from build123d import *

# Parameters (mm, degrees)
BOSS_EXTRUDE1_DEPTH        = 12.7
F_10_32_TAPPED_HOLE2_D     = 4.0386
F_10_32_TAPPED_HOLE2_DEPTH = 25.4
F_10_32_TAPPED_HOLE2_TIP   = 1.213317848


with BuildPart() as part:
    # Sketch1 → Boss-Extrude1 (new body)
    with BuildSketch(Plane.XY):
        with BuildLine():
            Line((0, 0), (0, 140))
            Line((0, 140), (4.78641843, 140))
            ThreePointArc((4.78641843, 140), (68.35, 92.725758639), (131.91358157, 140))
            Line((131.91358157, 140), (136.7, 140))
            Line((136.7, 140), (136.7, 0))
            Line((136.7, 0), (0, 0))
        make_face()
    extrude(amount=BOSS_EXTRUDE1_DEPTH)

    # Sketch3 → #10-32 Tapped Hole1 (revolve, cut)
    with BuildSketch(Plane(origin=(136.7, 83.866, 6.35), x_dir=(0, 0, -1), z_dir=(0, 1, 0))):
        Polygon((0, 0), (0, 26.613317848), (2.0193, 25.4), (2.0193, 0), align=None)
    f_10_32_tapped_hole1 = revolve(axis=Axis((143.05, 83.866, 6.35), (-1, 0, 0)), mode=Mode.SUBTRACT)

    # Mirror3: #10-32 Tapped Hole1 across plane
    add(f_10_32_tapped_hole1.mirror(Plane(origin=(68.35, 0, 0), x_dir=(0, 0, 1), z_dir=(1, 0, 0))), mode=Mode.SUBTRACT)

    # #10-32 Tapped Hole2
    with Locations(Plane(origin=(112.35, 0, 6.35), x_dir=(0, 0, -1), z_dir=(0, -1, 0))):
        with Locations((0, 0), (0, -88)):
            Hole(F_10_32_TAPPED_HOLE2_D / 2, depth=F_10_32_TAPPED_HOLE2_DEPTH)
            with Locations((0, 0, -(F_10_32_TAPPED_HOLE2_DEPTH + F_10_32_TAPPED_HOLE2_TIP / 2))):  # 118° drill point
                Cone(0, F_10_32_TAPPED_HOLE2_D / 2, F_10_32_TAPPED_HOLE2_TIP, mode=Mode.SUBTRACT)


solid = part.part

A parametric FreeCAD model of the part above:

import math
import FreeCAD as App
import Part
import Sketcher

V = App.Vector
Q = App.Units.Quantity

doc = App.newDocument("Part")
body = doc.addObject("PartDesign::Body", "Body")

# Sketch on XY plane
sketch1 = body.newObject("Sketcher::SketchObject", "Sketch")
sketch1.AttachmentSupport = (doc.getObject("XY_Plane"), [""])
sketch1.MapMode = "FlatFace"
sketch1.addGeometry([
    Part.LineSegment(V(0, 140, 0), V(0, 0, 0)),  # 0
    Part.LineSegment(V(0, 0, 0), V(136.7, 0, 0)),  # 1
    Part.LineSegment(V(136.7, 0, 0), V(136.7, 140, 0)),  # 2
    Part.LineSegment(V(136.7, 140, 0), V(131.913582, 140, 0)),  # 3
    Part.ArcOfCircle(Part.Circle(V(68.35, 159.095759, 0), V(0, 0, 1), 66.37), math.radians(-163.278691), math.radians(-16.721309)),  # 4
    Part.LineSegment(V(4.786418, 140, 0), V(0, 140, 0)),  # 5
], False)
sketch1.addConstraint([
    Sketcher.Constraint("Coincident", 0, 2, 1, 1),
    Sketcher.Constraint("Coincident", 1, 2, 2, 1),
    Sketcher.Constraint("Coincident", 2, 2, 3, 1),
    Sketcher.Constraint("Coincident", 3, 2, 4, 2),
    Sketcher.Constraint("Coincident", 4, 1, 5, 1),
    Sketcher.Constraint("Coincident", 5, 2, 0, 1),
    Sketcher.Constraint("Vertical", 0),
    Sketcher.Constraint("Horizontal", 1),
    Sketcher.Constraint("Vertical", 2),
    Sketcher.Constraint("Horizontal", 3),
    Sketcher.Constraint("Horizontal", 5),
    Sketcher.Constraint("Coincident", 0, 2, -1, 1),
    Sketcher.Constraint("Horizontal", 3, 2, 4, 1),
    Sketcher.Constraint("Equal", 3, 5),
    Sketcher.Constraint("Radius", 4, 66.37),
    Sketcher.Constraint("DistanceX", 1, 1, 1, 2, 136.7),
    Sketcher.Constraint("DistanceY", 0, 2, 0, 1, 140.0),
    Sketcher.Constraint("DistanceX", 3, 2, 3, 1, 4.786418),
])
pad1 = body.newObject("PartDesign::Pad", "Pad")
pad1.Profile = sketch1
pad1.Length = Q("0.5 in")

# Sketch on XZ plane
sketch2 = body.newObject("Sketcher::SketchObject", "Sketch001")
sketch2.AttachmentSupport = (doc.getObject("XZ_Plane"), [""])
sketch2.MapMode = "FlatFace"
sketch2.AttachmentOffset = App.Placement(V(0, 0, -83.866), App.Rotation())
sketch2.addGeometry([
    Part.LineSegment(V(110.086682, 6.35, 0), V(136.7, 6.35, 0)),
    Part.LineSegment(V(136.7, 6.35, 0), V(136.7, 4.3307, 0)),
    Part.LineSegment(V(136.7, 4.3307, 0), V(111.3, 4.3307, 0)),
    Part.LineSegment(V(111.3, 4.3307, 0), V(110.086682, 6.35, 0)),
], False)
sketch2.addGeometry(Part.LineSegment(V(136.7, 6.35, 0), V(110.086682, 6.35, 0)), True)  # axis
sketch2.addConstraint([
    Sketcher.Constraint("Coincident", 0, 2, 1, 1),
    Sketcher.Constraint("Coincident", 1, 2, 2, 1),
    Sketcher.Constraint("Coincident", 2, 2, 3, 1),
    Sketcher.Constraint("Coincident", 3, 2, 0, 1),
    Sketcher.Constraint("Horizontal", 0),
    Sketcher.Constraint("Vertical", 1),
    Sketcher.Constraint("Horizontal", 2),
    Sketcher.Constraint("Horizontal", 4),
    Sketcher.Constraint("Coincident", 4, 1, 0, 2),
    Sketcher.Constraint("Equal", 0, 4),
    Sketcher.Constraint("DistanceX", 2, 2, 2, 1, Q("1 in")),
    Sketcher.Constraint("Angle", 3, Q("121 deg")),
    Sketcher.Constraint("DistanceY", -1, 1, 0, 2, Q("0.25 in")),
    Sketcher.Constraint("DistanceY", 1, 2, 1, 1, Q("0.0795 in")),
    Sketcher.Constraint("DistanceX", -1, 1, 0, 2, 136.7),
])
groove = body.newObject("PartDesign::Groove", "Groove")
groove.Profile = sketch2
groove.ReferenceAxis = (sketch2, ["Axis0"])
groove.Angle = 360
doc.recompute()

datumplane = body.newObject("PartDesign::Plane", "DatumPlane")
datumplane.AttachmentSupport = (doc.getObject("YZ_Plane"), [""])
datumplane.MapMode = "FlatFace"
datumplane.AttachmentOffset = App.Placement(V(0, 0, 68.35), App.Rotation())
mirrored = body.newObject("PartDesign::Mirrored", "Mirrored")
mirrored.Originals = [groove]
mirrored.MirrorPlane = (datumplane, [""])
body.Tip = mirrored

# Sketch on XZ plane
sketch3 = body.newObject("Sketcher::SketchObject", "Sketch002")
sketch3.AttachmentSupport = (doc.getObject("XZ_Plane"), [""])
sketch3.MapMode = "FlatFace"
sketch3.addGeometry([
    Part.Circle(V(112.35, 6.35, 0), V(0, 0, 1), 2.0193),
    Part.Circle(V(24.35, 6.35, 0), V(0, 0, 1), 2.0193),
], False)
sketch3.addConstraint([
    Sketcher.Constraint("Equal", 0, 1),
    Sketcher.Constraint("Horizontal", 0, 3, 1, 3),
    Sketcher.Constraint("Diameter", 0, Q("0.159 in")),
    Sketcher.Constraint("DistanceY", -1, 1, 0, 3, Q("0.25 in")),
    Sketcher.Constraint("DistanceX", -1, 1, 0, 3, 112.35),
    Sketcher.Constraint("DistanceX", -1, 1, 1, 3, 24.35),
])
doc.recompute()
hole = body.newObject("PartDesign::Hole", "Hole")
hole.Profile = sketch3
hole.ThreadType = "None"
hole.Diameter = Q("0.159 in")
hole.DepthType = "Dimension"
hole.Depth = Q("1 in")
hole.DrillPoint = "Angled"
hole.DrillPointAngle = 118

doc.recompute()
